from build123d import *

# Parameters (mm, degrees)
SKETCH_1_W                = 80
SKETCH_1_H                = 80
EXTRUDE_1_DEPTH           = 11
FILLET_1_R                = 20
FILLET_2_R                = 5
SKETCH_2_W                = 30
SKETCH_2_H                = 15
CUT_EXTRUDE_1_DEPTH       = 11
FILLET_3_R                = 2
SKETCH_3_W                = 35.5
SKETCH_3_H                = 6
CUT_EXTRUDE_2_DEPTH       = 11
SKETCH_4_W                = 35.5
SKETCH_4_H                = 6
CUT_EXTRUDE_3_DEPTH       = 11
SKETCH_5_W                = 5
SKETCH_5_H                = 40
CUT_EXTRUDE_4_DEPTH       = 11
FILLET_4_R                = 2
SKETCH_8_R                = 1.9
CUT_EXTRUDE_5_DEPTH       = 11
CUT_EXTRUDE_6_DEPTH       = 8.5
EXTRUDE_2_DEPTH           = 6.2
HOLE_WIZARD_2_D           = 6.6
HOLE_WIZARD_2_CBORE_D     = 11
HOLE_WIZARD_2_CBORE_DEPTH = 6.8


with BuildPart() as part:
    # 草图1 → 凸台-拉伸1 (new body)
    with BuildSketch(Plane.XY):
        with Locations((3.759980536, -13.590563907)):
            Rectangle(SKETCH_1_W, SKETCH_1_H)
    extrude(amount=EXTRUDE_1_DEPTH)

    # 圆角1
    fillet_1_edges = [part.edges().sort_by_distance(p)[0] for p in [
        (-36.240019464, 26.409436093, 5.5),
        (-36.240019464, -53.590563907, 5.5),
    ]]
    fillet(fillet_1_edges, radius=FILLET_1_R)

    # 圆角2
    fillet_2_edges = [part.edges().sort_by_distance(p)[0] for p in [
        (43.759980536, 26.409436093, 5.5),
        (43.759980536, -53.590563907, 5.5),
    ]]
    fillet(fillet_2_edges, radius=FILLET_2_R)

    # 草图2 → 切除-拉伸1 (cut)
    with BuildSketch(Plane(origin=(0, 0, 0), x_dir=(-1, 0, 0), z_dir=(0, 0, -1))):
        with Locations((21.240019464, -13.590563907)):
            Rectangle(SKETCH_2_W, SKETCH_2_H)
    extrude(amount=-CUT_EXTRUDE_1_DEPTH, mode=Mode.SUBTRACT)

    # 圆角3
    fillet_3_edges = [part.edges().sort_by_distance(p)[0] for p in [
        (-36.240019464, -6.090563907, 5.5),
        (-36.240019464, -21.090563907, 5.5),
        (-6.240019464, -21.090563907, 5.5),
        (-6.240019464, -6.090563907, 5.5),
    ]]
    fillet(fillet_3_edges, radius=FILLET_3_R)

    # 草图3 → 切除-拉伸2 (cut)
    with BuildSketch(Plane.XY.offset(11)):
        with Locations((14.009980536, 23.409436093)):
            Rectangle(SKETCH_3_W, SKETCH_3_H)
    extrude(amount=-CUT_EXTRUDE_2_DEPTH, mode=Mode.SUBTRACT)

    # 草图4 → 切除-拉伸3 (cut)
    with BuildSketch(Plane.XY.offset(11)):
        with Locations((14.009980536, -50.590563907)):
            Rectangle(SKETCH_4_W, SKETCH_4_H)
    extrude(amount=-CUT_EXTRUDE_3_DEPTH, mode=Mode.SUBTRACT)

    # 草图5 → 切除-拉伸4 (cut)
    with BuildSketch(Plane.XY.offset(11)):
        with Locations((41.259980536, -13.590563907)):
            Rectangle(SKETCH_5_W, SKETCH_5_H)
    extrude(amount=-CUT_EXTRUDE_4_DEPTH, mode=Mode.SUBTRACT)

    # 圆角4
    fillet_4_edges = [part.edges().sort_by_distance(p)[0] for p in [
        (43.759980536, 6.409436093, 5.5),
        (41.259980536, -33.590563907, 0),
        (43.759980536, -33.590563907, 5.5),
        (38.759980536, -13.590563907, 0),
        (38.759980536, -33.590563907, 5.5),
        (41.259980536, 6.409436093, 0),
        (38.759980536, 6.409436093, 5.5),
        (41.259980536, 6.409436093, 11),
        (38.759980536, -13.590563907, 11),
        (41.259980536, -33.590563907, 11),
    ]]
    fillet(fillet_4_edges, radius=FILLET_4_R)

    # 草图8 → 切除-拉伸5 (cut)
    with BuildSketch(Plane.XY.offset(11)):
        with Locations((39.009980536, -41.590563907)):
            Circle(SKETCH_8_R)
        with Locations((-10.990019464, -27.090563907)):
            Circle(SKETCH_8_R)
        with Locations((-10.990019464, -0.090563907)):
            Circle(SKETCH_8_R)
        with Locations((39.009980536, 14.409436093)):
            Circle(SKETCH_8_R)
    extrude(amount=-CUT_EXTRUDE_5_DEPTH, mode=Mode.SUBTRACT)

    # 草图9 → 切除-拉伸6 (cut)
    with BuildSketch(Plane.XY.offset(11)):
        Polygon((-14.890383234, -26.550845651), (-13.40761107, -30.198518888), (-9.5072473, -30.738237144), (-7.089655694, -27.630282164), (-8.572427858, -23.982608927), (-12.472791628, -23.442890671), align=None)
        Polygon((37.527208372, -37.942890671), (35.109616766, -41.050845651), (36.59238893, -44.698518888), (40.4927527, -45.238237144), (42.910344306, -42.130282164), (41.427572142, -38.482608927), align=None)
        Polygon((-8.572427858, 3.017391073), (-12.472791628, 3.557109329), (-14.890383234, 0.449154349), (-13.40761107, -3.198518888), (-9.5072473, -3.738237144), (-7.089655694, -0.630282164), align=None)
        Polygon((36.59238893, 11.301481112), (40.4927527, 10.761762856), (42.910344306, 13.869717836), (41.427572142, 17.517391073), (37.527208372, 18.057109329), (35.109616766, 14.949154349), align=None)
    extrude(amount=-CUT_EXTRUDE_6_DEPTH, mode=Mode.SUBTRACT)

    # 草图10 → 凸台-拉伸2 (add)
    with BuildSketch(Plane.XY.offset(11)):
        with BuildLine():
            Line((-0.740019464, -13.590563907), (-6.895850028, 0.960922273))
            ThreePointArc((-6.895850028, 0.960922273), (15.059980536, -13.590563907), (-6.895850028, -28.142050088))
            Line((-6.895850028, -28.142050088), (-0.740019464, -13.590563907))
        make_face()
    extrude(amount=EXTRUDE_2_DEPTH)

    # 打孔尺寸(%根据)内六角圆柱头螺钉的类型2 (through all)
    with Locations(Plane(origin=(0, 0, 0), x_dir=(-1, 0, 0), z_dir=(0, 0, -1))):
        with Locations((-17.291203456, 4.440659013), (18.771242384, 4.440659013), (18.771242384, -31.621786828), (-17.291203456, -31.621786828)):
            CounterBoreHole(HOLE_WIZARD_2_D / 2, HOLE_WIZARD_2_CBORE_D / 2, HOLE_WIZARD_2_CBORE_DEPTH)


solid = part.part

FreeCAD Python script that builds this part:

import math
import FreeCAD as App
import Part
import Sketcher
from FreeCAD import Vector


def edges_at(feature, points):
    """Names of the edges that pass closest to the given points."""
    edges = feature.Shape.Edges
    near = lambda p: min(range(len(edges)), key=lambda i: edges[i].distToShape(Part.Vertex(*p))[0])
    return sorted({f"Edge{near(p) + 1}" for p in points})

doc = App.newDocument("Part")
params = doc.addObject("Spreadsheet::Sheet", "Params")
for row, (alias, value) in enumerate([
    ("sketch1_width", "80 mm"),
    ("pad1_length", "11 mm"),
    ("fillet_radius", "20 mm"),
    ("fillet2_radius", "5 mm"),
    ("sketch2_width", "30 mm"),
    ("sketch2_height", "15 mm"),
    ("pocket1_length", "11 mm"),
    ("fillet3_radius", "2 mm"),
    ("sketch3_height", "6 mm"),
    ("sketch3_width", "35.5 mm"),
    ("pocket2_length", "11 mm"),
    ("sketch4_height", "6 mm"),
    ("sketch4_width", "35.5 mm"),
    ("pocket3_length", "11 mm"),
    ("sketch5_width", "5 mm"),
    ("sketch5_height", "40 mm"),
    ("pocket4_length", "11 mm"),
    ("fillet4_radius", "2 mm"),
    ("sketch6_diameter", "3.8 mm"),
    ("pocket5_length", "11 mm"),
    ("pocket6_length", "8.5 mm"),
    ("sketch8_radius", "15.8 mm"),
    ("pad2_length", "6.2 mm"),
    ("sketch9_diameter", "6.6 mm"),
    ("hole_diameter", "6.6 mm"),
    ("hole_cbore_diameter", "11 mm"),
    ("hole_cbore_depth", "6.8 mm"),
], start=1):
    params.set(f"A{row}", alias)
    params.set(f"B{row}", "=" + value)
    params.setAlias(f"B{row}", alias)

body = doc.addObject("PartDesign::Body", "Body")

# Sketch on XY plane
sketch1 = body.newObject("Sketcher::SketchObject", "Sketch")
sketch1.AttachmentSupport = (doc.getObject("XY_Plane"), [""])
sketch1.MapMode = "FlatFace"
sketch1.addGeometry([
    Part.LineSegment(Vector(-36, 26, 0), Vector(-36, -54, 0)),
    Part.LineSegment(Vector(-36, -54, 0), Vector(44, -54, 0)),
    Part.LineSegment(Vector(44, -54, 0), Vector(44, 26, 0)),
    Part.LineSegment(Vector(44, 26, 0), Vector(-36, 26, 0)),
], False)
sketch1.addConstraint([
    Sketcher.Constraint("Coincident", 0, 2, 1, 1),
    Sketcher.Constraint("Coincident", 1, 2, 2, 1),
    Sketcher.Constraint("Coincident", 2, 2, 3, 1),
    Sketcher.Constraint("Coincident", 3, 2, 0, 1),
    Sketcher.Constraint("Vertical", 0),
    Sketcher.Constraint("Horizontal", 1),
    Sketcher.Constraint("Vertical", 2),
    Sketcher.Constraint("Horizontal", 3),
    Sketcher.Constraint("Equal", 3, 0),
    Sketcher.Constraint("DistanceX", 1, 1, 1, 2, 80.0),
    Sketcher.Constraint("DistanceX", 0, 2, -1, 1, 36.240019),
    Sketcher.Constraint("DistanceY", 0, 2, -1, 1, 53.590564),
])
sketch1.setExpression("Constraints[9]", "Params.sketch1_width")
pad1 = body.newObject("PartDesign::Pad", "Pad")
pad1.Profile = sketch1
pad1.setExpression("Length", "Params.pad1_length")
doc.recompute()

fillet = body.newObject("PartDesign::Fillet", "Fillet")
fillet.Base = (pad1, edges_at(pad1, [(-36.24, 26.409, 5.5), (-36.24, -53.591, 5.5)]))
fillet.setExpression("Radius", "Params.fillet_radius")
doc.recompute()

fillet2 = body.newObject("PartDesign::Fillet", "Fillet001")
fillet2.Base = (fillet, edges_at(fillet, [(43.76, 26.409, 5.5), (43.76, -53.591, 5.5)]))
fillet2.setExpression("Radius", "Params.fillet2_radius")

# Sketch on XY plane
sketch2 = body.newObject("Sketcher::SketchObject", "Sketch001")
sketch2.AttachmentSupport = (doc.getObject("XY_Plane"), [""])
sketch2.MapMode = "FlatFace"
sketch2.addGeometry([
    Part.LineSegment(Vector(-6, -6, 0), Vector(-6, -21, 0)),
    Part.LineSegment(Vector(-6, -21, 0), Vector(-36, -21, 0)),
    Part.LineSegment(Vector(-36, -21, 0), Vector(-36, -6, 0)),
    Part.LineSegment(Vector(-36, -6, 0), Vector(-6, -6, 0)),
], False)
sketch2.addConstraint([
    Sketcher.Constraint("Coincident", 0, 2, 1, 1),
    Sketcher.Constraint("Coincident", 1, 2, 2, 1),
    Sketcher.Constraint("Coincident", 2, 2, 3, 1),
    Sketcher.Constraint("Coincident", 3, 2, 0, 1),
    Sketcher.Constraint("Vertical", 0),
    Sketcher.Constraint("Horizontal", 1),
    Sketcher.Constraint("Vertical", 2),
    Sketcher.Constraint("Horizontal", 3),
    Sketcher.Constraint("DistanceX", 1, 2, 1, 1, 30.0),
    Sketcher.Constraint("DistanceY", 0, 2, 0, 1, 15.0),
    Sketcher.Constraint("DistanceX", 0, 2, -1, 1, 6.240019),
    Sketcher.Constraint("DistanceY", 0, 2, -1, 1, 21.090564),
])
sketch2.setExpression("Constraints[8]", "Params.sketch2_width")
sketch2.setExpression("Constraints[9]", "Params.sketch2_height")
pocket1 = body.newObject("PartDesign::Pocket", "Pocket")
pocket1.Profile = sketch2
pocket1.setExpression("Length", "Params.pocket1_length")
pocket1.Reversed = True
doc.recompute()

fillet3 = body.newObject("PartDesign::Fillet", "Fillet002")
fillet3.Base = (pocket1, edges_at(pocket1, [
    (-36.24, -6.091, 5.5),
    (-36.24, -21.091, 5.5),
    (-6.24, -21.091, 5.5),
    (-6.24, -6.091, 5.5),
]))
fillet3.setExpression("Radius", "Params.fillet3_radius")

# Sketch on XY plane
sketch3 = body.newObject("Sketcher::SketchObject", "Sketch002")
sketch3.AttachmentSupport = (doc.getObject("XY_Plane"), [""])
sketch3.MapMode = "FlatFace"
sketch3.AttachmentOffset = App.Placement(Vector(0, 0, 11), App.Rotation())
sketch3.addGeometry([
    Part.LineSegment(Vector(-4, 26, 0), Vector(-4, 20, 0)),
    Part.LineSegment(Vector(-4, 20, 0), Vector(32, 20, 0)),
    Part.LineSegment(Vector(32, 20, 0), Vector(32, 26, 0)),
    Part.LineSegment(Vector(32, 26, 0), Vector(-4, 26, 0)),
], False)
sketch3.addConstraint([
    Sketcher.Constraint("Coincident", 0, 2, 1, 1),
    Sketcher.Constraint("Coincident", 1, 2, 2, 1),
    Sketcher.Constraint("Coincident", 2, 2, 3, 1),
    Sketcher.Constraint("Coincident", 3, 2, 0, 1),
    Sketcher.Constraint("Vertical", 0),
    Sketcher.Constraint("Horizontal", 1),
    Sketcher.Constraint("Vertical", 2),
    Sketcher.Constraint("Horizontal", 3),
    Sketcher.Constraint("DistanceY", 0, 2, 0, 1, 6.0),
    Sketcher.Constraint("DistanceX", 1, 1, 1, 2, 35.5),
    Sketcher.Constraint("DistanceX", 0, 2, -1, 1, 3.740019),
    Sketcher.Constraint("DistanceY", -1, 1, 0, 2, 20.409436),
])
sketch3.setExpression("Constraints[8]", "Params.sketch3_height")
sketch3.setExpression("Constraints[9]", "Params.sketch3_width")
pocket2 = body.newObject("PartDesign::Pocket", "Pocket001")
pocket2.Profile = sketch3
pocket2.setExpression("Length", "Params.pocket2_length")

# Sketch on XY plane
sketch4 = body.newObject("Sketcher::SketchObject", "Sketch003")
sketch4.AttachmentSupport = (doc.getObject("XY_Plane"), [""])
sketch4.MapMode = "FlatFace"
sketch4.AttachmentOffset = App.Placement(Vector(0, 0, 11), App.Rotation())
sketch4.addGeometry([
    Part.LineSegment(Vector(-4, -48, 0), Vector(-4, -54, 0)),
    Part.LineSegment(Vector(-4, -54, 0), Vector(32, -54, 0)),
    Part.LineSegment(Vector(32, -54, 0), Vector(32, -48, 0)),
    Part.LineSegment(Vector(32, -48, 0), Vector(-4, -48, 0)),
], False)
sketch4.addConstraint([
    Sketcher.Constraint("Coincident", 0, 2, 1, 1),
    Sketcher.Constraint("Coincident", 1, 2, 2, 1),
    Sketcher.Constraint("Coincident", 2, 2, 3, 1),
    Sketcher.Constraint("Coincident", 3, 2, 0, 1),
    Sketcher.Constraint("Vertical", 0),
    Sketcher.Constraint("Horizontal", 1),
    Sketcher.Constraint("Vertical", 2),
    Sketcher.Constraint("Horizontal", 3),
    Sketcher.Constraint("DistanceY", 0, 2, 0, 1, 6.0),
    Sketcher.Constraint("DistanceX", 1, 1, 1, 2, 35.5),
    Sketcher.Constraint("DistanceX", 0, 2, -1, 1, 3.740019),
    Sketcher.Constraint("DistanceY", 0, 2, -1, 1, 53.590564),
])
sketch4.setExpression("Constraints[8]", "Params.sketch4_height")
sketch4.setExpression("Constraints[9]", "Params.sketch4_width")
pocket3 = body.newObject("PartDesign::Pocket", "Pocket002")
pocket3.Profile = sketch4
pocket3.setExpression("Length", "Params.pocket3_length")

# Sketch on XY plane
sketch5 = body.newObject("Sketcher::SketchObject", "Sketch004")
sketch5.AttachmentSupport = (doc.getObject("XY_Plane"), [""])
sketch5.MapMode = "FlatFace"
sketch5.AttachmentOffset = App.Placement(Vector(0, 0, 11), App.Rotation())
sketch5.addGeometry([
    Part.LineSegment(Vector(39, 6, 0), Vector(39, -34, 0)),
    Part.LineSegment(Vector(39, -34, 0), Vector(44, -34, 0)),
    Part.LineSegment(Vector(44, -34, 0), Vector(44, 6, 0)),
    Part.LineSegment(Vector(44, 6, 0), Vector(39, 6, 0)),
], False)
sketch5.addConstraint([
    Sketcher.Constraint("Coincident", 0, 2, 1, 1),
    Sketcher.Constraint("Coincident", 1, 2, 2, 1),
    Sketcher.Constraint("Coincident", 2, 2, 3, 1),
    Sketcher.Constraint("Coincident", 3, 2, 0, 1),
    Sketcher.Constraint("Vertical", 0),
    Sketcher.Constraint("Horizontal", 1),
    Sketcher.Constraint("Vertical", 2),
    Sketcher.Constraint("Horizontal", 3),
    Sketcher.Constraint("DistanceX", 1, 1, 1, 2, 5.0),
    Sketcher.Constraint("DistanceY", 0, 2, 0, 1, 40.0),
    Sketcher.Constraint("DistanceX", -1, 1, 0, 2, 38.759981),
    Sketcher.Constraint("DistanceY", 0, 2, -1, 1, 33.590564),
])
sketch5.setExpression("Constraints[8]", "Params.sketch5_width")
sketch5.setExpression("Constraints[9]", "Params.sketch5_height")
pocket4 = body.newObject("PartDesign::Pocket", "Pocket003")
pocket4.Profile = sketch5
pocket4.setExpression("Length", "Params.pocket4_length")
doc.recompute()

fillet4 = body.newObject("PartDesign::Fillet", "Fillet003")
fillet4.Base = (pocket4, edges_at(pocket4, [
    (43.76, 6.409, 5.5),
    (41.26, -33.591, 0),
    (43.76, -33.591, 5.5),
    (38.76, -13.591, 0),
    (38.76, -33.591, 5.5),
    (41.26, 6.409, 0),
    (38.76, 6.409, 5.5),
    (41.26, 6.409, 11),
    (38.76, -13.591, 11),
    (41.26, -33.591, 11),
]))
fillet4.setExpression("Radius", "Params.fillet4_radius")

# Sketch on XY plane
sketch6 = body.newObject("Sketcher::SketchObject", "Sketch005")
sketch6.AttachmentSupport = (doc.getObject("XY_Plane"), [""])
sketch6.MapMode = "FlatFace"
sketch6.AttachmentOffset = App.Placement(Vector(0, 0, 11), App.Rotation())
sketch6.addGeometry([
    Part.Circle(Vector(39, -41.6, 0), Vector(0, 0, 1), 1.9),
    Part.Circle(Vector(-11, -27.1, 0), Vector(0, 0, 1), 1.9),
    Part.Circle(Vector(-11, -0.1, 0), Vector(0, 0, 1), 1.9),
    Part.Circle(Vector(39, 14.4, 0), Vector(0, 0, 1), 1.9),
], False)
sketch6.addConstraint([
    Sketcher.Constraint("Equal", 0, 1),
    Sketcher.Constraint("Equal", 1, 2),
    Sketcher.Constraint("Equal", 2, 3),
    Sketcher.Constraint("Vertical", 1, 3, 2, 3),
    Sketcher.Constraint("Vertical", 0, 3, 3, 3),
    Sketcher.Constraint("Diameter", 0, 3.8),
    Sketcher.Constraint("DistanceX", 1, 3, 0, 3, 50.0),
    Sketcher.Constraint("DistanceY", 1, 3, 2, 3, 27.0),
    Sketcher.Constraint("DistanceY", 0, 3, 3, 3, 56.0),
    Sketcher.Constraint("DistanceY", 0, 3, 1, 3, 14.5),
    Sketcher.Constraint("DistanceX", -1, 1, 0, 3, 39.009981),
    Sketcher.Constraint("DistanceY", 0, 3, -1, 1, 41.590564),
])
sketch6.setExpression("Constraints[5]", "Params.sketch6_diameter")
pocket5 = body.newObject("PartDesign::Pocket", "Pocket004")
pocket5.Profile = sketch6
pocket5.setExpression("Length", "Params.pocket5_length")

# Sketch on XY plane
sketch7 = body.newObject("Sketcher::SketchObject", "Sketch006")
sketch7.AttachmentSupport = (doc.getObject("XY_Plane"), [""])
sketch7.MapMode = "FlatFace"
sketch7.AttachmentOffset = App.Placement(Vector(0, 0, 11), App.Rotation())
sketch7.addGeometry([
    Part.LineSegment(Vector(-14.9, -26.6, 0), Vector(-13.4, -30.2, 0)),  # 0
    Part.LineSegment(Vector(-13.4, -30.2, 0), Vector(-9.5, -30.7, 0)),  # 1
    Part.LineSegment(Vector(-9.5, -30.7, 0), Vector(-7.1, -27.6, 0)),  # 2
    Part.LineSegment(Vector(-7.1, -27.6, 0), Vector(-8.6, -24, 0)),  # 3
    Part.LineSegment(Vector(-8.6, -24, 0), Vector(-12.5, -23.4, 0)),  # 4
    Part.LineSegment(Vector(-12.5, -23.4, 0), Vector(-14.9, -26.6, 0)),  # 5
    Part.LineSegment(Vector(37.5, -37.9, 0), Vector(35.1, -41.1, 0)),  # 6
    Part.LineSegment(Vector(35.1, -41.1, 0), Vector(36.6, -44.7, 0)),  # 7
    Part.LineSegment(Vector(36.6, -44.7, 0), Vector(40.5, -45.2, 0)),  # 8
    Part.LineSegment(Vector(40.5, -45.2, 0), Vector(42.9, -42.1, 0)),  # 9
    Part.LineSegment(Vector(42.9, -42.1, 0), Vector(41.4, -38.5, 0)),  # 10
    Part.LineSegment(Vector(41.4, -38.5, 0), Vector(37.5, -37.9, 0)),  # 11
    Part.LineSegment(Vector(-8.6, 3, 0), Vector(-12.5, 3.6, 0)),  # 12
    Part.LineSegment(Vector(-12.5, 3.6, 0), Vector(-14.9, 0.4, 0)),  # 13
    Part.LineSegment(Vector(-14.9, 0.4, 0), Vector(-13.4, -3.2, 0)),  # 14
    Part.LineSegment(Vector(-13.4, -3.2, 0), Vector(-9.5, -3.7, 0)),  # 15
    Part.LineSegment(Vector(-9.5, -3.7, 0), Vector(-7.1, -0.6, 0)),  # 16
    Part.LineSegment(Vector(-7.1, -0.6, 0), Vector(-8.6, 3, 0)),  # 17
    Part.LineSegment(Vector(36.6, 11.3, 0), Vector(40.5, 10.8, 0)),  # 18
    Part.LineSegment(Vector(40.5, 10.8, 0), Vector(42.9, 13.9, 0)),  # 19
    Part.LineSegment(Vector(42.9, 13.9, 0), Vector(41.4, 17.5, 0)),  # 20
    Part.LineSegment(Vector(41.4, 17.5, 0), Vector(37.5, 18.1, 0)),  # 21
    Part.LineSegment(Vector(37.5, 18.1, 0), Vector(35.1, 14.9, 0)),  # 22
    Part.LineSegment(Vector(35.1, 14.9, 0), Vector(36.6, 11.3, 0)),  # 23
], False)
sketch7.addConstraint([
    Sketcher.Constraint("Coincident", 0, 2, 1, 1),
    Sketcher.Constraint("Coincident", 1, 2, 2, 1),
    Sketcher.Constraint("Coincident", 2, 2, 3, 1),
    Sketcher.Constraint("Coincident", 3, 2, 4, 1),
    Sketcher.Constraint("Coincident", 4, 2, 5, 1),
    Sketcher.Constraint("Coincident", 5, 2, 0, 1),
    Sketcher.Constraint("Coincident", 6, 2, 7, 1),
    Sketcher.Constraint("Coincident", 7, 2, 8, 1),
    Sketcher.Constraint("Coincident", 8, 2, 9, 1),
    Sketcher.Constraint("Coincident", 9, 2, 10, 1),
    Sketcher.Constraint("Coincident", 10, 2, 11, 1),
    Sketcher.Constraint("Coincident", 11, 2, 6, 1),
    Sketcher.Constraint("Coincident", 12, 2, 13, 1),
    Sketcher.Constraint("Coincident", 13, 2, 14, 1),
    Sketcher.Constraint("Coincident", 14, 2, 15, 1),
    Sketcher.Constraint("Coincident", 15, 2, 16, 1),
    Sketcher.Constraint("Coincident", 16, 2, 17, 1),
    Sketcher.Constraint("Coincident", 17, 2, 12, 1),
    Sketcher.Constraint("Coincident", 18, 2, 19, 1),
    Sketcher.Constraint("Coincident", 19, 2, 20, 1),
    Sketcher.Constraint("Coincident", 20, 2, 21, 1),
    Sketcher.Constraint("Coincident", 21, 2, 22, 1),
    Sketcher.Constraint("Coincident", 22, 2, 23, 1),
    Sketcher.Constraint("Coincident", 23, 2, 18, 1),
    Sketcher.Constraint("Parallel", 0, 3),
    Sketcher.Constraint("Parallel", 1, 4),
    Sketcher.Constraint("Parallel", 2, 5),
    Sketcher.Constraint("Parallel", 5, 6),
    Sketcher.Constraint("Parallel", 3, 7),
    Sketcher.Constraint("Parallel", 4, 8),
    Sketcher.Constraint("Parallel", 6, 9),
    Sketcher.Constraint("Parallel", 7, 10),
    Sketcher.Constraint("Parallel", 8, 11),
    Sketcher.Constraint("Parallel", 11, 12),
    Sketcher.Constraint("Parallel", 9, 13),
    Sketcher.Constraint("Parallel", 10, 14),
    Sketcher.Constraint("Parallel", 12, 15),
    Sketcher.Constraint("Parallel", 13, 16),
    Sketcher.Constraint("Parallel", 14, 17),
    Sketcher.Constraint("Parallel", 15, 18),
    Sketcher.Constraint("Parallel", 16, 19),
    Sketcher.Constraint("Parallel", 17, 20),
    Sketcher.Constraint("Parallel", 18, 21),
    Sketcher.Constraint("Parallel", 19, 22),
    Sketcher.Constraint("Parallel", 20, 23),
    Sketcher.Constraint("Vertical", 4, 2, 12, 2),
    Sketcher.Constraint("Vertical", 5, 2, 13, 2),
    Sketcher.Constraint("Vertical", 0, 2, 14, 2),
    Sketcher.Constraint("Vertical", 1, 2, 15, 2),
    Sketcher.Constraint("Vertical", 2, 2, 16, 2),
    Sketcher.Constraint("Vertical", 8, 2, 18, 2),
    Sketcher.Constraint("Vertical", 9, 2, 19, 2),
    Sketcher.Constraint("Vertical", 10, 2, 20, 2),
    Sketcher.Constraint("Vertical", 11, 2, 21, 2),
    Sketcher.Constraint("Vertical", 6, 2, 22, 2),
    Sketcher.Constraint("Equal", 0, 1),
    Sketcher.Constraint("Equal", 1, 2),
    Sketcher.Constraint("Equal", 2, 3),
    Sketcher.Constraint("Equal", 5, 6),
    Sketcher.Constraint("Equal", 6, 7),
    Sketcher.Constraint("Equal", 7, 8),
    Sketcher.Constraint("Equal", 8, 9),
    Sketcher.Constraint("DistanceX", 0, 2, 7, 2, 50.0),
    Sketcher.Constraint("DistanceY", 4, 2, 12, 2, 27.0),
    Sketcher.Constraint("DistanceY", 7, 2, 0, 2, 14.5),
    Sketcher.Constraint("DistanceY", 15, 2, 18, 2, 14.5),
    Sketcher.Constraint("Distance", 0, 3.937529),
    Sketcher.Constraint("DistanceX", 0, 2, -1, 1, 13.407611),
    Sketcher.Constraint("DistanceY", 0, 2, -1, 1, 30.198519),
    Sketcher.Constraint("DistanceY", 3, 2, -1, 1, 23.982609),
    Sketcher.Constraint("DistanceX", 4, 2, -1, 1, 12.472792),
    Sketcher.Constraint("DistanceY", 4, 2, -1, 1, 23.442891),
])
pocket6 = body.newObject("PartDesign::Pocket", "Pocket005")
pocket6.Profile = sketch7
pocket6.setExpression("Length", "Params.pocket6_length")

# Sketch on XY plane
sketch8 = body.newObject("Sketcher::SketchObject", "Sketch007")
sketch8.AttachmentSupport = (doc.getObject("XY_Plane"), [""])
sketch8.MapMode = "FlatFace"
sketch8.AttachmentOffset = App.Placement(Vector(0, 0, 11), App.Rotation())
sketch8.addGeometry([
    Part.LineSegment(Vector(-7, 1, 0), Vector(-1, -14, 0)),
    Part.LineSegment(Vector(-1, -14, 0), Vector(-7, -28, 0)),
    Part.ArcOfCircle(Part.Circle(Vector(-1, -14, 0), Vector(0, 0, 1), 16), math.radians(-113), math.radians(113)),
], False)
sketch8.addConstraint([
    Sketcher.Constraint("Coincident", 0, 2, 1, 1),
    Sketcher.Constraint("Coincident", 1, 2, 2, 1),
    Sketcher.Constraint("Coincident", 2, 2, 0, 1),
    Sketcher.Constraint("Coincident", 0, 2, 2, 3),
    Sketcher.Constraint("Vertical", 1, 2, 2, 2),
    Sketcher.Constraint("Radius", 2, 15.8),
    Sketcher.Constraint("DistanceX", 2, 3, -1, 1, 0.740019),
    Sketcher.Constraint("DistanceX", 1, 2, -1, 1, 6.89585),
    Sketcher.Constraint("DistanceY", 1, 2, -1, 1, 28.14205),
])
sketch8.setExpression("Constraints[5]", "Params.sketch8_radius")
pad2 = body.newObject("PartDesign::Pad", "Pad001")
pad2.Profile = sketch8
pad2.setExpression("Length", "Params.pad2_length")

# Sketch on XY plane
sketch9 = body.newObject("Sketcher::SketchObject", "Sketch008")
sketch9.AttachmentSupport = (doc.getObject("XY_Plane"), [""])
sketch9.MapMode = "FlatFace"
sketch9.addGeometry([
    Part.Circle(Vector(17.3, 4.4, 0), Vector(0, 0, 1), 3.3),
    Part.Circle(Vector(-18.8, 4.4, 0), Vector(0, 0, 1), 3.3),
    Part.Circle(Vector(-18.8, -31.6, 0), Vector(0, 0, 1), 3.3),
    Part.Circle(Vector(17.3, -31.6, 0), Vector(0, 0, 1), 3.3),
], False)
sketch9.addConstraint([
    Sketcher.Constraint("Equal", 0, 1),
    Sketcher.Constraint("Equal", 1, 2),
    Sketcher.Constraint("Equal", 2, 3),
    Sketcher.Constraint("Horizontal", 0, 3, 1, 3),
    Sketcher.Constraint("Horizontal", 2, 3, 3, 3),
    Sketcher.Constraint("Vertical", 1, 3, 2, 3),
    Sketcher.Constraint("Vertical", 0, 3, 3, 3),
    Sketcher.Constraint("Diameter", 0, 6.6),
    Sketcher.Constraint("DistanceY", -1, 1, 0, 3, 4.440659),
    Sketcher.Constraint("DistanceX", -1, 1, 0, 3, 17.291203),
    Sketcher.Constraint("DistanceX", 1, 3, -1, 1, 18.771242),
    Sketcher.Constraint("DistanceY", 2, 3, -1, 1, 31.621787),
])
sketch9.setExpression("Constraints[7]", "Params.sketch9_diameter")
doc.recompute()
hole = body.newObject("PartDesign::Hole", "Hole")
hole.Profile = sketch9
hole.ThreadType = "None"
hole.setExpression("Diameter", "Params.hole_diameter")
hole.DepthType = "ThroughAll"
hole.HoleCutType = "Counterbore"
hole.setExpression("HoleCutDiameter", "Params.hole_cbore_diameter")
hole.setExpression("HoleCutDepth", "Params.hole_cbore_depth")
hole.Reversed = True

doc.recompute()
